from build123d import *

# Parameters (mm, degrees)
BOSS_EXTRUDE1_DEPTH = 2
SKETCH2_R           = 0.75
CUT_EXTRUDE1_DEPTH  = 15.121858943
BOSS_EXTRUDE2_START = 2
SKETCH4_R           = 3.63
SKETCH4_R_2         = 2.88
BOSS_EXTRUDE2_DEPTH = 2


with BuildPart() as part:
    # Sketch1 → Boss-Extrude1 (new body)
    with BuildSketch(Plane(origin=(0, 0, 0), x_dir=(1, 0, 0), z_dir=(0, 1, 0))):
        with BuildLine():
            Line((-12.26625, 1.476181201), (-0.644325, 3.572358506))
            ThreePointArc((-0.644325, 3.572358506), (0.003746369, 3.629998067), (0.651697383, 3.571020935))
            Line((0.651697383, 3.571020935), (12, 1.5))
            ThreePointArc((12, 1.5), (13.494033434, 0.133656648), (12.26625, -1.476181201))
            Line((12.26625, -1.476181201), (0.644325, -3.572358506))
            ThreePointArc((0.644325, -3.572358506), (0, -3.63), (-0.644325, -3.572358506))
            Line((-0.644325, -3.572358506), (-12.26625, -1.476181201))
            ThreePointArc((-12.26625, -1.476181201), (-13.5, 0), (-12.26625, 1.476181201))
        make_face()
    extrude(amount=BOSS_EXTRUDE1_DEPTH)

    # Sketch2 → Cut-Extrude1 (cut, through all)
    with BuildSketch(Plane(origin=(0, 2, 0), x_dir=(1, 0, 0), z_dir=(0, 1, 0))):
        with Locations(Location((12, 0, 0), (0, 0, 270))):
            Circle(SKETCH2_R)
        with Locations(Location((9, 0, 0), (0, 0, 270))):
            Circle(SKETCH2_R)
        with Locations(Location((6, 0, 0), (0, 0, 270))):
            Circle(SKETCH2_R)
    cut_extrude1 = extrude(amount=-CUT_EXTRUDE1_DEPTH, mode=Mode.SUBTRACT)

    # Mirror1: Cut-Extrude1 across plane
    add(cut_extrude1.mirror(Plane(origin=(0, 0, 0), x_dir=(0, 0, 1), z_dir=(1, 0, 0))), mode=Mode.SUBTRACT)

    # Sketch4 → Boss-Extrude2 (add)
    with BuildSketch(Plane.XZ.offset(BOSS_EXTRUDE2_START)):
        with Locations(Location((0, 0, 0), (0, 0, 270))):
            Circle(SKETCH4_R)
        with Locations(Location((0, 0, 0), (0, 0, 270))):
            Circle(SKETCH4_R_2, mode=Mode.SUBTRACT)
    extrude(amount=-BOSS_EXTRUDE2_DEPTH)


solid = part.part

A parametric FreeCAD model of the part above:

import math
import FreeCAD as App
import Part
import Sketcher

V = App.Vector
Q = App.Units.Quantity

doc = App.newDocument("Part")
body = doc.addObject("PartDesign::Body", "Body")

# Sketch on XZ plane
sketch1 = body.newObject("Sketcher::SketchObject", "Sketch")
sketch1.AttachmentSupport = (doc.getObject("XZ_Plane"), [""])
sketch1.MapMode = "FlatFace"
sketch1.addGeometry(Part.LineSegment(V(-0.6, -3.6, 0), V(-12.3, -1.5, 0)), False)
sketch1.addGeometry(Part.ArcOfCircle(Part.Circle(V(-12, 0, 0), V(0, 0, 1), 1.5), math.radians(100), math.radians(260)), False)
sketch1.addGeometry(Part.LineSegment(V(-12.3, 1.5, 0), V(-0.6, 3.6, 0)), False)
sketch1.addGeometry(Part.ArcOfCircle(Part.Circle(V(0, 0, 0), V(0, 0, 1), 3.6), math.radians(80), math.radians(100)), False)
sketch1.addGeometry(Part.LineSegment(V(0.6, 3.6, 0), V(12.3, 1.5, 0)), False)
sketch1.addGeometry(Part.ArcOfCircle(Part.Circle(V(12, 0, 0), V(0, 0, 1), 1.5), math.radians(-90), math.radians(80)), False)
sketch1.addGeometry(Part.LineSegment(V(12, -1.5, 0), V(0.7, -3.6, 0)), False)
sketch1.addGeometry(Part.ArcOfCircle(Part.Circle(V(0, 0, 0), V(0, 0, 1), 3.6), math.radians(-100), math.radians(-80)), False)
sketch1.addConstraint(Sketcher.Constraint("Tangent", 0, 2, 1, 2))
sketch1.addConstraint(Sketcher.Constraint("Tangent", 1, 1, 2, 1))
sketch1.addConstraint(Sketcher.Constraint("Tangent", 2, 2, 3, 2))
sketch1.addConstraint(Sketcher.Constraint("Tangent", 3, 1, 4, 1))
sketch1.addConstraint(Sketcher.Constraint("Tangent", 4, 2, 5, 2))
sketch1.addConstraint(Sketcher.Constraint("Coincident", 5, 1, 6, 1))
sketch1.addConstraint(Sketcher.Constraint("Tangent", 6, 2, 7, 2))
sketch1.addConstraint(Sketcher.Constraint("Tangent", 7, 1, 0, 1))
sketch1.addConstraint(Sketcher.Constraint("Coincident", 3, 3, -1, 1))
sketch1.addConstraint(Sketcher.Constraint("Coincident", 7, 3, -1, 1))
sketch1.addConstraint(Sketcher.Constraint("Equal", 1, 5))
sketch1.addConstraint(Sketcher.Constraint("Equal", 3, 7))
sketch1.addConstraint(Sketcher.Constraint("Symmetric", 1, 3, 5, 3, -1, 1))
sketch1.addConstraint(Sketcher.Constraint("PointOnObject", 1, 3, -1))
sketch1.addConstraint(Sketcher.Constraint("Radius", 1, Q("1.5 mm")))
sketch1.addConstraint(Sketcher.Constraint("Radius", 3, Q("3.63 mm")))
sketch1.addConstraint(Sketcher.Constraint("DistanceX", 1, 3, -1, 1, Q("12 mm")))
sketch1.addConstraint(Sketcher.Constraint("DistanceX", -1, 1, 5, 1, Q("12 mm")))
pad1 = body.newObject("PartDesign::Pad", "Pad")
pad1.Profile = sketch1
pad1.Length = 2
pad1.Reversed = True

# Sketch on XZ plane
sketch2 = body.newObject("Sketcher::SketchObject", "Sketch001")
sketch2.AttachmentSupport = (doc.getObject("XZ_Plane"), [""])
sketch2.MapMode = "FlatFace"
sketch2.AttachmentOffset = App.Placement(V(0, 0, -2), App.Rotation())
sketch2.addGeometry(Part.Circle(V(12, 0, 0), V(0, 0, 1), 0.8), False)
sketch2.addGeometry(Part.Circle(V(9, 0, 0), V(0, 0, 1), 0.8), False)
sketch2.addGeometry(Part.Circle(V(6, 0, 0), V(0, 0, 1), 0.8), False)
sketch2.addConstraint(Sketcher.Constraint("Equal", 0, 1))
sketch2.addConstraint(Sketcher.Constraint("Equal", 1, 2))
sketch2.addConstraint(Sketcher.Constraint("PointOnObject", 0, 3, -1))
sketch2.addConstraint(Sketcher.Constraint("PointOnObject", 1, 3, -1))
sketch2.addConstraint(Sketcher.Constraint("PointOnObject", 2, 3, -1))
sketch2.addConstraint(Sketcher.Constraint("Diameter", 0, Q("1.5 mm")))
sketch2.addConstraint(Sketcher.Constraint("DistanceX", -1, 1, 0, 3, Q("12 mm")))
sketch2.addConstraint(Sketcher.Constraint("DistanceX", -1, 1, 1, 3, Q("9 mm")))
sketch2.addConstraint(Sketcher.Constraint("DistanceX", -1, 1, 2, 3, Q("6 mm")))
pocket1 = body.newObject("PartDesign::Pocket", "Pocket")
pocket1.Profile = sketch2
pocket1.Type = "ThroughAll"
pocket1.Reversed = True
doc.recompute()

mirrored = body.newObject("PartDesign::Mirrored", "Mirrored")
mirrored.Originals = [pocket1]
mirrored.MirrorPlane = (doc.getObject("YZ_Plane"), [""])
body.Tip = mirrored

# Sketch on XZ plane
sketch3 = body.newObject("Sketcher::SketchObject", "Sketch002")
sketch3.AttachmentSupport = (doc.getObject("XZ_Plane"), [""])
sketch3.MapMode = "FlatFace"
sketch3.AttachmentOffset = App.Placement(V(0, 0, 2), App.Rotation())
sketch3.addGeometry(Part.Circle(V(0, 0, 0), V(0, 0, 1), 3.6), False)
sketch3.addGeometry(Part.Circle(V(0, 0, 0), V(0, 0, 1), 2.9), False)
sketch3.addConstraint(Sketcher.Constraint("Coincident", 0, 3, -1, 1))
sketch3.addConstraint(Sketcher.Constraint("Coincident", 1, 3, -1, 1))
sketch3.addConstraint(Sketcher.Constraint("Diameter", 0, Q("7.26 mm")))
sketch3.addConstraint(Sketcher.Constraint("Diameter", 1, Q("5.76 mm")))
pad2 = body.newObject("PartDesign::Pad", "Pad001")
pad2.Profile = sketch3
pad2.Length = 2
pad2.Reversed = True

doc.recompute()
